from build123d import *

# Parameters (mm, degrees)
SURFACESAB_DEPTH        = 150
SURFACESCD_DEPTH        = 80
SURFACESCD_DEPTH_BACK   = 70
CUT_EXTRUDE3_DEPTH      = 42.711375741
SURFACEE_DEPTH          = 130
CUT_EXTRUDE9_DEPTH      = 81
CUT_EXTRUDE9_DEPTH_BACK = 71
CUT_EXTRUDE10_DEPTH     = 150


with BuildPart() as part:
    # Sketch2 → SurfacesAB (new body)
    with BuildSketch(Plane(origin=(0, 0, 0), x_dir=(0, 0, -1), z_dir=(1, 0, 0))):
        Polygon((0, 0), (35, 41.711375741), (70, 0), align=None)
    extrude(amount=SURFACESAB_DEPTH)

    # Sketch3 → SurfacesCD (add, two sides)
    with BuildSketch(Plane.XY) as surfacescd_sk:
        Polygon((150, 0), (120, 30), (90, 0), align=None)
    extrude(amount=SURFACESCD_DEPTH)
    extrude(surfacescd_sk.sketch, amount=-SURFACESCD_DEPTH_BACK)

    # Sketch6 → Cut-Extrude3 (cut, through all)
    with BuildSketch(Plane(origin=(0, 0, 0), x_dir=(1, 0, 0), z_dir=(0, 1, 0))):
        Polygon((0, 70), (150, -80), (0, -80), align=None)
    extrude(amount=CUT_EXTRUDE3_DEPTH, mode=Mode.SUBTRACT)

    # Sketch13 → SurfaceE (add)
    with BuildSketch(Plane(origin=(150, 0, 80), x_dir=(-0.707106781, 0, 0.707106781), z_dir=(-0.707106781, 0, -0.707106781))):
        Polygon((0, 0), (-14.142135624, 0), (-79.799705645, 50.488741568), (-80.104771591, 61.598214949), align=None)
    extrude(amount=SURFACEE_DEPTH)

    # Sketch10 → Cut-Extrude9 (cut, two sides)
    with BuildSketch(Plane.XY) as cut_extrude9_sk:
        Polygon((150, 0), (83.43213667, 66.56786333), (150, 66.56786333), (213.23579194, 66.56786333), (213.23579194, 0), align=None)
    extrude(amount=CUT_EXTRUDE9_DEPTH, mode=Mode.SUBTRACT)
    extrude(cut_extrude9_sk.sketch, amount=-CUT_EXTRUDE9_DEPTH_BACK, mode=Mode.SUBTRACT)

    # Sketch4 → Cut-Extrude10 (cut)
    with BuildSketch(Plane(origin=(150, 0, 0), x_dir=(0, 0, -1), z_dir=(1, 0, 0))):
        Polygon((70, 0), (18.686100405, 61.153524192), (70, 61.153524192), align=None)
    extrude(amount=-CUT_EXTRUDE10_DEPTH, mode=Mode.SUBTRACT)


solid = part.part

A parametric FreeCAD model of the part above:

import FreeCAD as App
import Part
import Sketcher
Q = App.Units.Quantity


def add_polygon(sketch, points):
    """Adds a closed chain of lines whose ends are joined by coincident constraints."""
    first, n = sketch.GeometryCount, len(points)
    for a, b in zip(points, points[1:] + points[:1]):
        sketch.addGeometry(Part.LineSegment(App.Vector(*a, 0), App.Vector(*b, 0)), False)
    for i in range(n):
        sketch.addConstraint(Sketcher.Constraint("Coincident", first + i, 2, first + (i + 1) % n, 1))

doc = App.newDocument("Part")
body = doc.addObject("PartDesign::Body", "Body")

# Sketch on YZ plane
sketch1 = body.newObject("Sketcher::SketchObject", "Sketch")
sketch1.AttachmentSupport = (doc.getObject("YZ_Plane"), [""])
sketch1.MapMode = "FlatFace"
add_polygon(sketch1, [(42, -35), (0, 0), (0, -70)])  # lines 0-2
sketch1.addConstraint([
    Sketcher.Constraint("Vertical", 1),
    Sketcher.Constraint("Coincident", 0, 2, -1, 1),
    Sketcher.Constraint("Equal", 0, 2),
    Sketcher.Constraint("DistanceY", 1, 2, 1, 1, Q("70 mm")),
    Sketcher.Constraint("Angle", 0, Q("140 deg")),
])
pad1 = body.newObject("PartDesign::Pad", "Pad")
pad1.Profile = sketch1
pad1.Length = 150

# Sketch on XY plane
sketch2 = body.newObject("Sketcher::SketchObject", "Sketch001")
sketch2.AttachmentSupport = (doc.getObject("XY_Plane"), [""])
sketch2.MapMode = "FlatFace"
add_polygon(sketch2, [(150, 0), (120, 30), (90, 0)])  # lines 0-2
sketch2.addConstraint([
    Sketcher.Constraint("Horizontal", 2),
    Sketcher.Constraint("PointOnObject", 1, 2, -1),
    Sketcher.Constraint("Perpendicular", 0, 1),
    Sketcher.Constraint("Equal", 0, 1),
    Sketcher.Constraint("DistanceX", 2, 1, 2, 2, Q("60 mm")),
    Sketcher.Constraint("DistanceX", -1, 1, 0, 2, Q("120 mm")),
])
pad2 = body.newObject("PartDesign::Pad", "Pad001")
pad2.Profile = sketch2
pad2.Type = "TwoLengths"
pad2.Length = 80
pad2.Length2 = 70

# Sketch on XZ plane
sketch3 = body.newObject("Sketcher::SketchObject", "Sketch002")
sketch3.AttachmentSupport = (doc.getObject("XZ_Plane"), [""])
sketch3.MapMode = "FlatFace"
add_polygon(sketch3, [(150, 80), (0, -70), (0, 80)])  # lines 0-2
sketch3.addConstraint([
    Sketcher.Constraint("Vertical", 1),
    Sketcher.Constraint("Horizontal", 2),
    Sketcher.Constraint("PointOnObject", 0, 2, -2),
    Sketcher.Constraint("Equal", 2, 1),
    Sketcher.Constraint("DistanceX", 2, 1, 2, 2, Q("150 mm")),
    Sketcher.Constraint("DistanceY", 0, 2, -1, 1, Q("70 mm")),
])
pocket1 = body.newObject("PartDesign::Pocket", "Pocket")
pocket1.Profile = sketch3
pocket1.Type = "ThroughAll"

# Sketch on an angled plane
sketch4 = body.newObject("Sketcher::SketchObject", "Sketch003")
sketch4.Placement = App.Placement(App.Vector(150, 0, 80), App.Rotation(App.Vector(-0.707106781, 0, 0.707106781), App.Vector(0, 0.999999999, 0), App.Vector(-0.707106781, 0, -0.707106781), "ZXY"))
add_polygon(sketch4, [(-14, 0), (0, 0), (-80, 62), (-80, 50)])  # lines 0-3
sketch4.addConstraint([
    Sketcher.Constraint("Horizontal", 0),
    Sketcher.Constraint("Coincident", 0, 2, -1, 1),
    Sketcher.Constraint("Parallel", 1, 3),
    Sketcher.Constraint("Distance", 1, Q("101.050059 mm")),
    Sketcher.Constraint("Distance", 2, Q("11.113661 mm")),
    Sketcher.Constraint("DistanceX", 0, 1, 0, 2, Q("14.142136 mm")),
    Sketcher.Constraint("DistanceX", 1, 2, -1, 1, Q("80.104772 mm")),
])
pad3 = body.newObject("PartDesign::Pad", "Pad002")
pad3.Profile = sketch4
pad3.Length = 130

# Sketch on XY plane
sketch5 = body.newObject("Sketcher::SketchObject", "Sketch004")
sketch5.AttachmentSupport = (doc.getObject("XY_Plane"), [""])
sketch5.MapMode = "FlatFace"
add_polygon(sketch5, [(83, 67), (150, 0), (213, 0), (213, 67)])  # lines 0-3
sketch5.addConstraint([
    Sketcher.Constraint("Horizontal", 1),
    Sketcher.Constraint("Vertical", 2),
    Sketcher.Constraint("Horizontal", 3),
    Sketcher.Constraint("PointOnObject", 0, 2, -1),
    Sketcher.Constraint("Angle", 0, Q("-45 deg")),
    Sketcher.Constraint("DistanceX", -1, 1, 0, 2, Q("150 mm")),
    Sketcher.Constraint("DistanceX", 1, 1, 1, 2, Q("63.235792 mm")),
    Sketcher.Constraint("DistanceX", 3, 2, 3, 1, Q("129.803655 mm")),
])
pocket2 = body.newObject("PartDesign::Pocket", "Pocket001")
pocket2.Profile = sketch5
pocket2.Type = "ThroughAll"
pocket2.Midplane = True

# Sketch on YZ plane
sketch6 = body.newObject("Sketcher::SketchObject", "Sketch005")
sketch6.AttachmentSupport = (doc.getObject("YZ_Plane"), [""])
sketch6.MapMode = "FlatFace"
sketch6.AttachmentOffset = App.Placement(App.Vector(0, 0, 150), App.Rotation())
add_polygon(sketch6, [(61, -19), (0, -70), (61, -70)])  # lines 0-2
sketch6.addConstraint([
    Sketcher.Constraint("Horizontal", 1),
    Sketcher.Constraint("Vertical", 2),
    Sketcher.Constraint("PointOnObject", 0, 2, -2),
    Sketcher.Constraint("Angle", 0, Q("-140 deg")),
    Sketcher.Constraint("DistanceY", 0, 2, -1, 1, Q("70 mm")),
    Sketcher.Constraint("DistanceY", 2, 1, 2, 2, Q("51.3139 mm")),
])
pocket3 = body.newObject("PartDesign::Pocket", "Pocket002")
pocket3.Profile = sketch6
pocket3.Length = 150

doc.recompute()
